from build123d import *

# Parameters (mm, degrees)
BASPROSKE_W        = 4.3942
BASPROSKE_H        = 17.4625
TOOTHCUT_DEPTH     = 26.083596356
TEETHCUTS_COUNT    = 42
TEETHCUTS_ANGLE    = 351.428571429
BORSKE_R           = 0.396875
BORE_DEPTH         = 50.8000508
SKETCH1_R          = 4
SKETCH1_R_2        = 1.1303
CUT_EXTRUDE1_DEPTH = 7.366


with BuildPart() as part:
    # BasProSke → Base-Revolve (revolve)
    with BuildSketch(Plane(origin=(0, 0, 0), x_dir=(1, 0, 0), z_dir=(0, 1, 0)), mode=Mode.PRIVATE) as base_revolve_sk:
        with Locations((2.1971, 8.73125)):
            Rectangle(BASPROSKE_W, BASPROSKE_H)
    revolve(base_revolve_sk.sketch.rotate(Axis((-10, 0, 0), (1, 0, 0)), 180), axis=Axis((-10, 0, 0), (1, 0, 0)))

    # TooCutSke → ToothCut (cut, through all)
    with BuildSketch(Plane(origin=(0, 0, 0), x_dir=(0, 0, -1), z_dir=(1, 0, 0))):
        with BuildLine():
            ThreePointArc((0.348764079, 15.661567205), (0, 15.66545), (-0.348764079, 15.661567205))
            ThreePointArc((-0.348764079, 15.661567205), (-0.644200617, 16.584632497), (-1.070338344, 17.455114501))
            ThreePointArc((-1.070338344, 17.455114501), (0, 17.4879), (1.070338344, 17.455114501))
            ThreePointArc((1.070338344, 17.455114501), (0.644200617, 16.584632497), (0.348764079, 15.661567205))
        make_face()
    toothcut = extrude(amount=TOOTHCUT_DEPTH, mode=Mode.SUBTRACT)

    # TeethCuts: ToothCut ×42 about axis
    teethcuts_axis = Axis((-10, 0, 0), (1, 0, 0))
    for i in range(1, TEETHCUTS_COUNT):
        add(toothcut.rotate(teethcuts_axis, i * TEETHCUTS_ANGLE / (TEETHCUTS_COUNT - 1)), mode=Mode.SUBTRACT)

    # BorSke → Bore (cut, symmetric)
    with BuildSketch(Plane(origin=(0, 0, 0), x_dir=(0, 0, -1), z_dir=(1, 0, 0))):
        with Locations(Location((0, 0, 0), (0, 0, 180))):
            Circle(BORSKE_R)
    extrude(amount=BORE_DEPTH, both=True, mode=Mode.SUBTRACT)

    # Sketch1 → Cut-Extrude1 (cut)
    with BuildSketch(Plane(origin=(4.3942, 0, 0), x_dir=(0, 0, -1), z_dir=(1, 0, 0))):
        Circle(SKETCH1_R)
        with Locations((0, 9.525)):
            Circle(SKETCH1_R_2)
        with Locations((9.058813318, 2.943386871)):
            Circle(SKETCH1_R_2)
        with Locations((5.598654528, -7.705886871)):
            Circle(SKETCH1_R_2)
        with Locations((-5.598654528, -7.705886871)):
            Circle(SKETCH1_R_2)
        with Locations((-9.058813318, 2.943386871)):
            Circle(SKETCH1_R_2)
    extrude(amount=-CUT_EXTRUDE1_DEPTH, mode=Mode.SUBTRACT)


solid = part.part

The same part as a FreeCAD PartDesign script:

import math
import FreeCAD as App
import Part
import Sketcher

V = App.Vector
Q = App.Units.Quantity


def add_polygon(sketch, points):
    """Adds a closed chain of lines whose ends are joined by coincident constraints."""
    first, n = sketch.GeometryCount, len(points)
    for a, b in zip(points, points[1:] + points[:1]):
        sketch.addGeometry(Part.LineSegment(App.Vector(*a, 0), App.Vector(*b, 0)), False)
    for i in range(n):
        sketch.addConstraint(Sketcher.Constraint("Coincident", first + i, 2, first + (i + 1) % n, 1))

doc = App.newDocument("Part")
params = doc.addObject("Spreadsheet::Sheet", "Params")
for row, (alias, value) in enumerate([
    ("sketch1_width", "0.173 in"),
    ("sketch1_height", "0.6875 in"),
    ("revolution_angle", "360 deg"),
    ("sketch3_diameter", "0.03125 in"),
    ("pocket2_length", "101.600102 mm"),
    ("sketch4_diameter", "0.089 in"),
    ("pocket3_length", "0.29 in"),
], start=1):
    params.set(f"A{row}", alias)
    params.set(f"B{row}", "=" + value)
    params.setAlias(f"B{row}", alias)

body = doc.addObject("PartDesign::Body", "Body")

# Sketch on XZ plane
sketch1 = body.newObject("Sketcher::SketchObject", "Sketch")
sketch1.AttachmentSupport = (doc.getObject("XZ_Plane"), [""])
sketch1.MapMode = "FlatFace"
add_polygon(sketch1, [(0, -17.5), (0, 0), (4.4, 0), (4.4, -17.5)])  # lines 0-3
sketch1.addConstraint([
    Sketcher.Constraint("Vertical", 0),
    Sketcher.Constraint("Horizontal", 1),
    Sketcher.Constraint("Vertical", 2),
    Sketcher.Constraint("Horizontal", 3),
    Sketcher.Constraint("Coincident", 0, 2, -1, 1),
    Sketcher.Constraint("DistanceX", 1, 1, 1, 2, Q("0.173 in")),
    Sketcher.Constraint("DistanceY", 0, 1, 0, 2, Q("0.6875 in")),
])
sketch1.setExpression("Constraints[9]", "Params.sketch1_width")
sketch1.setExpression("Constraints[10]", "Params.sketch1_height")
revolution = body.newObject("PartDesign::Revolution", "Revolution")
revolution.Profile = sketch1
revolution.ReferenceAxis = (sketch1, ["H_Axis"])
revolution.setExpression("Angle", "Params.revolution_angle")

# Sketch on YZ plane
sketch2 = body.newObject("Sketcher::SketchObject", "Sketch001")
sketch2.AttachmentSupport = (doc.getObject("YZ_Plane"), [""])
sketch2.MapMode = "FlatFace"
sketch2.addGeometry([
    Part.ArcOfCircle(Part.Circle(V(0, 0, 0), V(0, 0, 1), 15.7), math.radians(-1.28), math.radians(1.28)),
    Part.ArcOfCircle(Part.Circle(V(14.1, -6.8, 0), V(0, 0, 1), 6.7), math.radians(59.75), math.radians(76.42)),
    Part.ArcOfCircle(Part.Circle(V(0, 0, 0), V(0, 0, 1), 17.5), math.radians(-3.51), math.radians(3.51)),
    Part.ArcOfCircle(Part.Circle(V(14.1, 6.8, 0), V(0, 0, 1), 6.7), math.radians(-76.42), math.radians(-59.75)),
], False)
sketch2.addConstraint([
    Sketcher.Constraint("Coincident", 0, 1, 1, 2),
    Sketcher.Constraint("Coincident", 1, 1, 2, 1),
    Sketcher.Constraint("Coincident", 2, 2, 3, 2),
    Sketcher.Constraint("Coincident", 3, 1, 0, 2),
    Sketcher.Constraint("Coincident", 0, 3, -1, 1),
    Sketcher.Constraint("Coincident", 2, 3, -1, 1),
    Sketcher.Constraint("Equal", 1, 3),
    Sketcher.Constraint("Symmetric", 1, 3, 3, 3, -1),
    Sketcher.Constraint("Radius", 1, Q("0.2625 in")),
    Sketcher.Constraint("Radius", 2, Q("0.6885 in")),
    Sketcher.Constraint("Radius", 0, 15.66545),
    Sketcher.Constraint("DistanceY", 1, 3, 0, 1, 6.481101),
    Sketcher.Constraint("DistanceY", 1, 1, -1, 1, 1.070338),
])
pocket1 = body.newObject("PartDesign::Pocket", "Pocket")
pocket1.Profile = sketch2
pocket1.Type = "ThroughAll"
pocket1.Reversed = True
doc.recompute()

polarpattern = body.newObject("PartDesign::PolarPattern", "PolarPattern")
polarpattern.Originals = [pocket1]
polarpattern.Axis = (doc.getObject("X_Axis"), [""])
polarpattern.Angle = 360
polarpattern.Occurrences = 42
body.Tip = polarpattern

# Sketch on YZ plane
sketch3 = body.newObject("Sketcher::SketchObject", "Sketch002")
sketch3.AttachmentSupport = (doc.getObject("YZ_Plane"), [""])
sketch3.MapMode = "FlatFace"
sketch3.addGeometry(Part.Circle(V(0, 0, 0), V(0, 0, 1), 0.4), False)
sketch3.addConstraint([
    Sketcher.Constraint("Coincident", 0, 3, -1, 1),
    Sketcher.Constraint("Diameter", 0, Q("0.03125 in")),
])
sketch3.setExpression("Constraints[1]", "Params.sketch3_diameter")
pocket2 = body.newObject("PartDesign::Pocket", "Pocket001")
pocket2.Profile = sketch3
pocket2.setExpression("Length", "Params.pocket2_length")
pocket2.Midplane = True

# Sketch on YZ plane
sketch4 = body.newObject("Sketcher::SketchObject", "Sketch003")
sketch4.AttachmentSupport = (doc.getObject("YZ_Plane"), [""])
sketch4.MapMode = "FlatFace"
sketch4.AttachmentOffset = App.Placement(V(0, 0, 0.173 * 25.4), App.Rotation())
sketch4.addGeometry([
    Part.Circle(V(0, 0, 0), V(0, 0, 1), 4),  # 0
    Part.Circle(V(9.5, 0, 0), V(0, 0, 1), 1.1),  # 1
    Part.Circle(V(2.9, -9.1, 0), V(0, 0, 1), 1.1),  # 2
    Part.Circle(V(-7.7, -5.6, 0), V(0, 0, 1), 1.1),  # 3
    Part.Circle(V(-7.7, 5.6, 0), V(0, 0, 1), 1.1),  # 4
    Part.Circle(V(2.9, 9.1, 0), V(0, 0, 1), 1.1),  # 5
], False)
sketch4.addConstraint([
    Sketcher.Constraint("Coincident", 0, 3, -1, 1),
    Sketcher.Constraint("Equal", 1, 2),
    Sketcher.Constraint("Equal", 2, 3),
    Sketcher.Constraint("Equal", 3, 4),
    Sketcher.Constraint("Equal", 4, 5),
    Sketcher.Constraint("Symmetric", 3, 3, 4, 3, -1),
    Sketcher.Constraint("Symmetric", 2, 3, 5, 3, -1),
    Sketcher.Constraint("PointOnObject", 1, 3, -1),
    Sketcher.Constraint("Diameter", 1, Q("0.089 in")),
    Sketcher.Constraint("Diameter", 0, 8.0),
    Sketcher.Constraint("DistanceX", -1, 1, 1, 3, Q("0.375 in")),
    Sketcher.Constraint("DistanceY", 2, 3, 3, 3, 3.460159),
    Sketcher.Constraint("DistanceY", 3, 3, 4, 3, 11.197309),
    Sketcher.Constraint("DistanceX", -1, 1, 2, 3, 2.943387),
    Sketcher.Constraint("DistanceX", 3, 3, -1, 1, 7.705887),
])
sketch4.setExpression("Constraints[8]", "Params.sketch4_diameter")
pocket3 = body.newObject("PartDesign::Pocket", "Pocket002")
pocket3.Profile = sketch4
pocket3.setExpression("Length", "Params.pocket3_length")

doc.recompute()
